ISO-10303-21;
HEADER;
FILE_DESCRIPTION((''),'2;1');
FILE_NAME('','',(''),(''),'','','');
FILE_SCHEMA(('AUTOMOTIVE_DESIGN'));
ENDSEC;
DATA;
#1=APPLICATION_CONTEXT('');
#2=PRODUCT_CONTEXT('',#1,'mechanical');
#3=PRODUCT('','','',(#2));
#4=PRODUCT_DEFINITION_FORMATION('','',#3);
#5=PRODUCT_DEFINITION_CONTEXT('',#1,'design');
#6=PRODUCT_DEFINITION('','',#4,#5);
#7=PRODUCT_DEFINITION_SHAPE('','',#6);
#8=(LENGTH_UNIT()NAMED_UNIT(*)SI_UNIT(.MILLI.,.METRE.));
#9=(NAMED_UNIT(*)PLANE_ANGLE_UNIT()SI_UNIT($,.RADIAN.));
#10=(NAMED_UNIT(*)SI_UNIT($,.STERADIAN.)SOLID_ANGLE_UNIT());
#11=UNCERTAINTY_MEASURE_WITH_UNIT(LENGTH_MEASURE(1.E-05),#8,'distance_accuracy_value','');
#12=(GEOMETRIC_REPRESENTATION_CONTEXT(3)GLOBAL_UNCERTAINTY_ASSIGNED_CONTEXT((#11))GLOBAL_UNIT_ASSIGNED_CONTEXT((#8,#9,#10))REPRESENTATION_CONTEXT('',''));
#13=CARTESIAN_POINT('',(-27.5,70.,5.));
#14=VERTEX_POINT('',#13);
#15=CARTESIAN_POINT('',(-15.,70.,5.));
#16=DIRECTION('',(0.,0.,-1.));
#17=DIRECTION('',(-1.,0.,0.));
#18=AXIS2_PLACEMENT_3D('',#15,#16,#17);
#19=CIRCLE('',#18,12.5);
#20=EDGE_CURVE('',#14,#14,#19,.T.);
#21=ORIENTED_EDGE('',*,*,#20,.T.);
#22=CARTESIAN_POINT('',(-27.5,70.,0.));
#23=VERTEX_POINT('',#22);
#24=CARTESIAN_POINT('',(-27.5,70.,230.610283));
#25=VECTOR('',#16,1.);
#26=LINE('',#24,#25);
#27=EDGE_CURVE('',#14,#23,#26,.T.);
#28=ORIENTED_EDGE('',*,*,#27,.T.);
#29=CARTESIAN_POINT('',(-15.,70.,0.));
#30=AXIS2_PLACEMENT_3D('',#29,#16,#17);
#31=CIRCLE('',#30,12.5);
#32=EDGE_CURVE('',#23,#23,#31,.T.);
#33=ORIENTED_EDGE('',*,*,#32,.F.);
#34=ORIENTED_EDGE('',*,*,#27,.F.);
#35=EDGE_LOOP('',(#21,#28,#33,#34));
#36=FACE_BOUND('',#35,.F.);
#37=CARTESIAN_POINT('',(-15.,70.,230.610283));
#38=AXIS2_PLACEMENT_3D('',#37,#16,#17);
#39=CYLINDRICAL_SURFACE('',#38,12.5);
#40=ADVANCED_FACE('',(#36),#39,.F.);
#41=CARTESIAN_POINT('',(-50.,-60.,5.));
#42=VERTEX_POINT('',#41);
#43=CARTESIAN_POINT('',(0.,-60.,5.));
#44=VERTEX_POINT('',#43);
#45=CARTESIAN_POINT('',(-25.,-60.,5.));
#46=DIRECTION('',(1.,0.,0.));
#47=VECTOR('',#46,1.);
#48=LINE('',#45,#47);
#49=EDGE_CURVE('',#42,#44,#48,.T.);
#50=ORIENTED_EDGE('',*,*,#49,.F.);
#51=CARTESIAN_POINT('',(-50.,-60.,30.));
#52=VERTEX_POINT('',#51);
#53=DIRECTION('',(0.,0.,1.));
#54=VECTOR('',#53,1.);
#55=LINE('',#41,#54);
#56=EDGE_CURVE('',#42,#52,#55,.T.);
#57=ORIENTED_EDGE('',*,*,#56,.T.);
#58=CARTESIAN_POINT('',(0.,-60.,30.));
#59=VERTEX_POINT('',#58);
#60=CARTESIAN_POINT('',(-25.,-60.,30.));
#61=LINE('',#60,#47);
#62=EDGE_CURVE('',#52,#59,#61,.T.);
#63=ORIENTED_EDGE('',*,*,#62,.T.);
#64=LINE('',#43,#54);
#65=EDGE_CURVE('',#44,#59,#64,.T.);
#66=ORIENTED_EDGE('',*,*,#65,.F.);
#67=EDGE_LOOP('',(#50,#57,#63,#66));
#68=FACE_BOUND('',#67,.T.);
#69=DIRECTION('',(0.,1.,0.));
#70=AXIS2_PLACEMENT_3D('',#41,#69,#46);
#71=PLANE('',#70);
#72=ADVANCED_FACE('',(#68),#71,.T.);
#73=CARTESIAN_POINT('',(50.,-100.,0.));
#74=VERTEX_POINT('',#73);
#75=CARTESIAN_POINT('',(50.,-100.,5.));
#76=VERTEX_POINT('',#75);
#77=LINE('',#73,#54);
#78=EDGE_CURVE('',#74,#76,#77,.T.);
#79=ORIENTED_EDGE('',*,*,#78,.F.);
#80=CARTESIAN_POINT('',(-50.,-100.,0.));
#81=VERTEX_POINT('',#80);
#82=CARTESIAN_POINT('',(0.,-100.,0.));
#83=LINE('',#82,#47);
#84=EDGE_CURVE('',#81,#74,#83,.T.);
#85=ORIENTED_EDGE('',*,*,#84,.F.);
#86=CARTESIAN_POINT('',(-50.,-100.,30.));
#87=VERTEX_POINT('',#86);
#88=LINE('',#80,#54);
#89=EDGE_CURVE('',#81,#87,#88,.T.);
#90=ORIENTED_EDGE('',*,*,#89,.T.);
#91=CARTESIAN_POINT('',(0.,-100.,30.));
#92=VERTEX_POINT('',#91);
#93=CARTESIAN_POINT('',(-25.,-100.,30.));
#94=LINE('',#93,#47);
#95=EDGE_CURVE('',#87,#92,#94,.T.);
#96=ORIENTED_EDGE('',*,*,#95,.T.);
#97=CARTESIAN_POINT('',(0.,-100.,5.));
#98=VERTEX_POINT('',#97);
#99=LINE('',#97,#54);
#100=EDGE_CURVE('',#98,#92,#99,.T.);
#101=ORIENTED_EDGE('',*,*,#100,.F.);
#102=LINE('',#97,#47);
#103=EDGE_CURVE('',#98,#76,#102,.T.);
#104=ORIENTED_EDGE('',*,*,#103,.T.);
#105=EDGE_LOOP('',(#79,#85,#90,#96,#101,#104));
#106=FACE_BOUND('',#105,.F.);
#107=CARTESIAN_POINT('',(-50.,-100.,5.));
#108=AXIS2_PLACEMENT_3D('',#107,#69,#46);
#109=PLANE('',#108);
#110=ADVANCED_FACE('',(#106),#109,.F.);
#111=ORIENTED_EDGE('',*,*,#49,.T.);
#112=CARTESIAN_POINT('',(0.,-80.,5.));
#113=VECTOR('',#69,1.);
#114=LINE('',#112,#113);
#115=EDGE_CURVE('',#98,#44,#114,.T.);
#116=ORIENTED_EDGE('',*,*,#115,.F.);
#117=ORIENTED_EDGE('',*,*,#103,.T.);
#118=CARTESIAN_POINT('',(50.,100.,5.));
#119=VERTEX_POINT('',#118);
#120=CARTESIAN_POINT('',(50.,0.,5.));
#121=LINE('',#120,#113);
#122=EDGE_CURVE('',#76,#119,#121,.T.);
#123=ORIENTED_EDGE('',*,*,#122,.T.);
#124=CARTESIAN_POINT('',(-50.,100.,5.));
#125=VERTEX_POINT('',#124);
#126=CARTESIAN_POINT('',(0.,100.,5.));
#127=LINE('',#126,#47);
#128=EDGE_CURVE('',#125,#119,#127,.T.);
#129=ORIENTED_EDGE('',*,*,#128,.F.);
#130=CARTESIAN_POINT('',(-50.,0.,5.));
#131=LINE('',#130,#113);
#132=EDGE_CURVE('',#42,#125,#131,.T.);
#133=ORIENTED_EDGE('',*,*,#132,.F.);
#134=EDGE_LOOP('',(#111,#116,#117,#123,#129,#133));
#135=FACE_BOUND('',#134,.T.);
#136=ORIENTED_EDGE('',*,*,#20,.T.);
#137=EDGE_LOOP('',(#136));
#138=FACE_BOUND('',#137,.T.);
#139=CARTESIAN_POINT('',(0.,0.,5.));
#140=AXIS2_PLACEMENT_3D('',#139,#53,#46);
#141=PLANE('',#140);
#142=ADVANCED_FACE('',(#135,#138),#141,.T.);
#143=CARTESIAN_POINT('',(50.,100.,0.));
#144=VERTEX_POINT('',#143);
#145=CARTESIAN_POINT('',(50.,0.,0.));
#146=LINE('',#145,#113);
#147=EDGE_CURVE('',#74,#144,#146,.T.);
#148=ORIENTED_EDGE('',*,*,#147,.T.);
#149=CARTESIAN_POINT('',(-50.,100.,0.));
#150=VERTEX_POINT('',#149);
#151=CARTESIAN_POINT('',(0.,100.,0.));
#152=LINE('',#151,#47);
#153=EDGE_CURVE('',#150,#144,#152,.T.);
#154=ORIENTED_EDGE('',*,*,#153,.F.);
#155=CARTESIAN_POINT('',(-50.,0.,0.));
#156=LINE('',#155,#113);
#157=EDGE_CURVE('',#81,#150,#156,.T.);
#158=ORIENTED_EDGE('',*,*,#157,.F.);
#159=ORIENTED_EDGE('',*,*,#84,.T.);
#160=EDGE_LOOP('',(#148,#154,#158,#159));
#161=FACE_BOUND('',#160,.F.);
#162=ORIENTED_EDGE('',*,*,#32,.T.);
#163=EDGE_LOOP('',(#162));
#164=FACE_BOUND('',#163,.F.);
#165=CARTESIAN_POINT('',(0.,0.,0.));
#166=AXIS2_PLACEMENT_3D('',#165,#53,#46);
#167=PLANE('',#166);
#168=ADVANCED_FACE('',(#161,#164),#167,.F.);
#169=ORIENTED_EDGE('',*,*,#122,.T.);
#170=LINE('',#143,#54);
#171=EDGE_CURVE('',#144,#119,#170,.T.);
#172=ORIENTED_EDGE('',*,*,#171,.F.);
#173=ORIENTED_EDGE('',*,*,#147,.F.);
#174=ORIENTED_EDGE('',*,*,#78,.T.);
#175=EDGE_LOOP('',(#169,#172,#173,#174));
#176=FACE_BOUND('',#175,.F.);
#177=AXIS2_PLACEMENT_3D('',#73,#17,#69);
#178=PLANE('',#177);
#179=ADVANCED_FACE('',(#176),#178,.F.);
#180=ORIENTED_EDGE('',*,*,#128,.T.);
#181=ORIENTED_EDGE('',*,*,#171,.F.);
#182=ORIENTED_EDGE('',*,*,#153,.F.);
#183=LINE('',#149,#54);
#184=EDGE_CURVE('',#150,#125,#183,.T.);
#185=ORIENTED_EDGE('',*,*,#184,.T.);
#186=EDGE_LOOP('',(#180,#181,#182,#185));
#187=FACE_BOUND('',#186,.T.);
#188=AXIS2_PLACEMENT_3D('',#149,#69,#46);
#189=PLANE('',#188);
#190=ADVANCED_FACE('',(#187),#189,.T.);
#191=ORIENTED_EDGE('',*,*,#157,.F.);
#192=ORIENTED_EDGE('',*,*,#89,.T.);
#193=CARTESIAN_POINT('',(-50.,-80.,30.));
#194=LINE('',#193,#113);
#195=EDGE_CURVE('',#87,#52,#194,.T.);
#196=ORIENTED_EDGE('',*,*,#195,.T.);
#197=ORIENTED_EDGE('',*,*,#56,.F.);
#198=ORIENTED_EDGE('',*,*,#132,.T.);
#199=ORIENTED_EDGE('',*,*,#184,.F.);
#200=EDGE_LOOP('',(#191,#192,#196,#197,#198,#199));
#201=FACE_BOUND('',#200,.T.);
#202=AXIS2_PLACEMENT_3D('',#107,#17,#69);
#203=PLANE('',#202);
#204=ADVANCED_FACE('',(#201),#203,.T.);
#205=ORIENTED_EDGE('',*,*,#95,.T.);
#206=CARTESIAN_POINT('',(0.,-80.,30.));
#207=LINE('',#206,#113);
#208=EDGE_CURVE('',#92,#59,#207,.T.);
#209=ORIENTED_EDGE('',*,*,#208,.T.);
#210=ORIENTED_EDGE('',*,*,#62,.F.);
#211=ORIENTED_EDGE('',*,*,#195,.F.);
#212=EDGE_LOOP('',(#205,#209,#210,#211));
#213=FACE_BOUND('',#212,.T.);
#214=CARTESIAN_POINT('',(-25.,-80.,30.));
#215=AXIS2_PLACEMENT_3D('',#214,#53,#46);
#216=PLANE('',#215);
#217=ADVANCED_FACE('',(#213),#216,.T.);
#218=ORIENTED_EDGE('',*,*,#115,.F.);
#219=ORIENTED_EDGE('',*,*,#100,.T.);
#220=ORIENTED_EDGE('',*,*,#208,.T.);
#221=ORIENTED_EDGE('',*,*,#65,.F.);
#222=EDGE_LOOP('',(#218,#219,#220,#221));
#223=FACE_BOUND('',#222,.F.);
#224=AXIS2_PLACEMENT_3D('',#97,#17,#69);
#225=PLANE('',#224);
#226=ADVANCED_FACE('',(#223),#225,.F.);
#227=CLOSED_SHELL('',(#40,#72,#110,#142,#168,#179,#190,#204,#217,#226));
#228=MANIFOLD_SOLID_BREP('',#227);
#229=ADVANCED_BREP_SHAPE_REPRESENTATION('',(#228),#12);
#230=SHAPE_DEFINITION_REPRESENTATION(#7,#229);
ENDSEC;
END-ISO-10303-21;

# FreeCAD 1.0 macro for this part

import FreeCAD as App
import Part
import Sketcher
from FreeCAD import Vector

doc = App.newDocument("Part")
body = doc.addObject("PartDesign::Body", "Body")

# Sketch on XY plane
sketch1 = body.newObject("Sketcher::SketchObject", "Sketch")
sketch1.AttachmentSupport = (doc.getObject("XY_Plane"), [""])
sketch1.MapMode = "FlatFace"
sketch1.addGeometry(Part.LineSegment(Vector(-50, 100, 0), Vector(-50, -100, 0)), False)
sketch1.addGeometry(Part.LineSegment(Vector(-50, -100, 0), Vector(50, -100, 0)), False)
sketch1.addGeometry(Part.LineSegment(Vector(50, -100, 0), Vector(50, 100, 0)), False)
sketch1.addGeometry(Part.LineSegment(Vector(50, 100, 0), Vector(-50, 100, 0)), False)
sketch1.addConstraint(Sketcher.Constraint("Coincident", 0, 2, 1, 1))
sketch1.addConstraint(Sketcher.Constraint("Coincident", 1, 2, 2, 1))
sketch1.addConstraint(Sketcher.Constraint("Coincident", 2, 2, 3, 1))
sketch1.addConstraint(Sketcher.Constraint("Coincident", 3, 2, 0, 1))
sketch1.addConstraint(Sketcher.Constraint("Vertical", 0))
sketch1.addConstraint(Sketcher.Constraint("Horizontal", 1))
sketch1.addConstraint(Sketcher.Constraint("Vertical", 2))
sketch1.addConstraint(Sketcher.Constraint("Horizontal", 3))
sketch1.addConstraint(Sketcher.Constraint("Symmetric", 0, 2, 2, 2, -1, 1))
sketch1.addConstraint(Sketcher.Constraint("DistanceX", 1, 1, 1, 2, 100.0))
sketch1.addConstraint(Sketcher.Constraint("DistanceY", 0, 2, 0, 1, 200.0))
pad1 = body.newObject("PartDesign::Pad", "Pad")
pad1.Profile = sketch1
pad1.Length = 5

# Sketch on XY plane
sketch2 = body.newObject("Sketcher::SketchObject", "Sketch001")
sketch2.AttachmentSupport = (doc.getObject("XY_Plane"), [""])
sketch2.MapMode = "FlatFace"
sketch2.AttachmentOffset = App.Placement(Vector(0, 0, 5), App.Rotation())
sketch2.addGeometry(Part.LineSegment(Vector(-50, -60, 0), Vector(-50, -100, 0)), False)
sketch2.addGeometry(Part.LineSegment(Vector(-50, -100, 0), Vector(0, -100, 0)), False)
sketch2.addGeometry(Part.LineSegment(Vector(0, -100, 0), Vector(0, -60, 0)), False)
sketch2.addGeometry(Part.LineSegment(Vector(0, -60, 0), Vector(-50, -60, 0)), False)
sketch2.addConstraint(Sketcher.Constraint("Coincident", 0, 2, 1, 1))
sketch2.addConstraint(Sketcher.Constraint("Coincident", 1, 2, 2, 1))
sketch2.addConstraint(Sketcher.Constraint("Coincident", 2, 2, 3, 1))
sketch2.addConstraint(Sketcher.Constraint("Coincident", 3, 2, 0, 1))
sketch2.addConstraint(Sketcher.Constraint("Vertical", 0))
sketch2.addConstraint(Sketcher.Constraint("Horizontal", 1))
sketch2.addConstraint(Sketcher.Constraint("Vertical", 2))
sketch2.addConstraint(Sketcher.Constraint("Horizontal", 3))
sketch2.addConstraint(Sketcher.Constraint("PointOnObject", 1, 2, -2))
sketch2.addConstraint(Sketcher.Constraint("DistanceX", 1, 1, 1, 2, 50.0))
sketch2.addConstraint(Sketcher.Constraint("DistanceY", 0, 2, 0, 1, 40.0))
sketch2.addConstraint(Sketcher.Constraint("DistanceY", 0, 2, -1, 1, 100.0))
pad2 = body.newObject("PartDesign::Pad", "Pad001")
pad2.Profile = sketch2
pad2.Length = 25

# Sketch on XY plane
sketch3 = body.newObject("Sketcher::SketchObject", "Sketch002")
sketch3.AttachmentSupport = (doc.getObject("XY_Plane"), [""])
sketch3.MapMode = "FlatFace"
sketch3.AttachmentOffset = App.Placement(Vector(0, 0, 5), App.Rotation())
sketch3.addGeometry(Part.Circle(Vector(-15, 70, 0), Vector(0, 0, 1), 12), False)
sketch3.addConstraint(Sketcher.Constraint("Diameter", 0, 25.0))
sketch3.addConstraint(Sketcher.Constraint("DistanceX", 0, 3, -1, 1, 15.0))
sketch3.addConstraint(Sketcher.Constraint("DistanceY", -1, 1, 0, 3, 70.0))
doc.recompute()
hole = body.newObject("PartDesign::Hole", "Hole")
hole.Profile = sketch3
hole.ThreadType = "None"
hole.Diameter = 25
hole.DepthType = "ThroughAll"

doc.recompute()
